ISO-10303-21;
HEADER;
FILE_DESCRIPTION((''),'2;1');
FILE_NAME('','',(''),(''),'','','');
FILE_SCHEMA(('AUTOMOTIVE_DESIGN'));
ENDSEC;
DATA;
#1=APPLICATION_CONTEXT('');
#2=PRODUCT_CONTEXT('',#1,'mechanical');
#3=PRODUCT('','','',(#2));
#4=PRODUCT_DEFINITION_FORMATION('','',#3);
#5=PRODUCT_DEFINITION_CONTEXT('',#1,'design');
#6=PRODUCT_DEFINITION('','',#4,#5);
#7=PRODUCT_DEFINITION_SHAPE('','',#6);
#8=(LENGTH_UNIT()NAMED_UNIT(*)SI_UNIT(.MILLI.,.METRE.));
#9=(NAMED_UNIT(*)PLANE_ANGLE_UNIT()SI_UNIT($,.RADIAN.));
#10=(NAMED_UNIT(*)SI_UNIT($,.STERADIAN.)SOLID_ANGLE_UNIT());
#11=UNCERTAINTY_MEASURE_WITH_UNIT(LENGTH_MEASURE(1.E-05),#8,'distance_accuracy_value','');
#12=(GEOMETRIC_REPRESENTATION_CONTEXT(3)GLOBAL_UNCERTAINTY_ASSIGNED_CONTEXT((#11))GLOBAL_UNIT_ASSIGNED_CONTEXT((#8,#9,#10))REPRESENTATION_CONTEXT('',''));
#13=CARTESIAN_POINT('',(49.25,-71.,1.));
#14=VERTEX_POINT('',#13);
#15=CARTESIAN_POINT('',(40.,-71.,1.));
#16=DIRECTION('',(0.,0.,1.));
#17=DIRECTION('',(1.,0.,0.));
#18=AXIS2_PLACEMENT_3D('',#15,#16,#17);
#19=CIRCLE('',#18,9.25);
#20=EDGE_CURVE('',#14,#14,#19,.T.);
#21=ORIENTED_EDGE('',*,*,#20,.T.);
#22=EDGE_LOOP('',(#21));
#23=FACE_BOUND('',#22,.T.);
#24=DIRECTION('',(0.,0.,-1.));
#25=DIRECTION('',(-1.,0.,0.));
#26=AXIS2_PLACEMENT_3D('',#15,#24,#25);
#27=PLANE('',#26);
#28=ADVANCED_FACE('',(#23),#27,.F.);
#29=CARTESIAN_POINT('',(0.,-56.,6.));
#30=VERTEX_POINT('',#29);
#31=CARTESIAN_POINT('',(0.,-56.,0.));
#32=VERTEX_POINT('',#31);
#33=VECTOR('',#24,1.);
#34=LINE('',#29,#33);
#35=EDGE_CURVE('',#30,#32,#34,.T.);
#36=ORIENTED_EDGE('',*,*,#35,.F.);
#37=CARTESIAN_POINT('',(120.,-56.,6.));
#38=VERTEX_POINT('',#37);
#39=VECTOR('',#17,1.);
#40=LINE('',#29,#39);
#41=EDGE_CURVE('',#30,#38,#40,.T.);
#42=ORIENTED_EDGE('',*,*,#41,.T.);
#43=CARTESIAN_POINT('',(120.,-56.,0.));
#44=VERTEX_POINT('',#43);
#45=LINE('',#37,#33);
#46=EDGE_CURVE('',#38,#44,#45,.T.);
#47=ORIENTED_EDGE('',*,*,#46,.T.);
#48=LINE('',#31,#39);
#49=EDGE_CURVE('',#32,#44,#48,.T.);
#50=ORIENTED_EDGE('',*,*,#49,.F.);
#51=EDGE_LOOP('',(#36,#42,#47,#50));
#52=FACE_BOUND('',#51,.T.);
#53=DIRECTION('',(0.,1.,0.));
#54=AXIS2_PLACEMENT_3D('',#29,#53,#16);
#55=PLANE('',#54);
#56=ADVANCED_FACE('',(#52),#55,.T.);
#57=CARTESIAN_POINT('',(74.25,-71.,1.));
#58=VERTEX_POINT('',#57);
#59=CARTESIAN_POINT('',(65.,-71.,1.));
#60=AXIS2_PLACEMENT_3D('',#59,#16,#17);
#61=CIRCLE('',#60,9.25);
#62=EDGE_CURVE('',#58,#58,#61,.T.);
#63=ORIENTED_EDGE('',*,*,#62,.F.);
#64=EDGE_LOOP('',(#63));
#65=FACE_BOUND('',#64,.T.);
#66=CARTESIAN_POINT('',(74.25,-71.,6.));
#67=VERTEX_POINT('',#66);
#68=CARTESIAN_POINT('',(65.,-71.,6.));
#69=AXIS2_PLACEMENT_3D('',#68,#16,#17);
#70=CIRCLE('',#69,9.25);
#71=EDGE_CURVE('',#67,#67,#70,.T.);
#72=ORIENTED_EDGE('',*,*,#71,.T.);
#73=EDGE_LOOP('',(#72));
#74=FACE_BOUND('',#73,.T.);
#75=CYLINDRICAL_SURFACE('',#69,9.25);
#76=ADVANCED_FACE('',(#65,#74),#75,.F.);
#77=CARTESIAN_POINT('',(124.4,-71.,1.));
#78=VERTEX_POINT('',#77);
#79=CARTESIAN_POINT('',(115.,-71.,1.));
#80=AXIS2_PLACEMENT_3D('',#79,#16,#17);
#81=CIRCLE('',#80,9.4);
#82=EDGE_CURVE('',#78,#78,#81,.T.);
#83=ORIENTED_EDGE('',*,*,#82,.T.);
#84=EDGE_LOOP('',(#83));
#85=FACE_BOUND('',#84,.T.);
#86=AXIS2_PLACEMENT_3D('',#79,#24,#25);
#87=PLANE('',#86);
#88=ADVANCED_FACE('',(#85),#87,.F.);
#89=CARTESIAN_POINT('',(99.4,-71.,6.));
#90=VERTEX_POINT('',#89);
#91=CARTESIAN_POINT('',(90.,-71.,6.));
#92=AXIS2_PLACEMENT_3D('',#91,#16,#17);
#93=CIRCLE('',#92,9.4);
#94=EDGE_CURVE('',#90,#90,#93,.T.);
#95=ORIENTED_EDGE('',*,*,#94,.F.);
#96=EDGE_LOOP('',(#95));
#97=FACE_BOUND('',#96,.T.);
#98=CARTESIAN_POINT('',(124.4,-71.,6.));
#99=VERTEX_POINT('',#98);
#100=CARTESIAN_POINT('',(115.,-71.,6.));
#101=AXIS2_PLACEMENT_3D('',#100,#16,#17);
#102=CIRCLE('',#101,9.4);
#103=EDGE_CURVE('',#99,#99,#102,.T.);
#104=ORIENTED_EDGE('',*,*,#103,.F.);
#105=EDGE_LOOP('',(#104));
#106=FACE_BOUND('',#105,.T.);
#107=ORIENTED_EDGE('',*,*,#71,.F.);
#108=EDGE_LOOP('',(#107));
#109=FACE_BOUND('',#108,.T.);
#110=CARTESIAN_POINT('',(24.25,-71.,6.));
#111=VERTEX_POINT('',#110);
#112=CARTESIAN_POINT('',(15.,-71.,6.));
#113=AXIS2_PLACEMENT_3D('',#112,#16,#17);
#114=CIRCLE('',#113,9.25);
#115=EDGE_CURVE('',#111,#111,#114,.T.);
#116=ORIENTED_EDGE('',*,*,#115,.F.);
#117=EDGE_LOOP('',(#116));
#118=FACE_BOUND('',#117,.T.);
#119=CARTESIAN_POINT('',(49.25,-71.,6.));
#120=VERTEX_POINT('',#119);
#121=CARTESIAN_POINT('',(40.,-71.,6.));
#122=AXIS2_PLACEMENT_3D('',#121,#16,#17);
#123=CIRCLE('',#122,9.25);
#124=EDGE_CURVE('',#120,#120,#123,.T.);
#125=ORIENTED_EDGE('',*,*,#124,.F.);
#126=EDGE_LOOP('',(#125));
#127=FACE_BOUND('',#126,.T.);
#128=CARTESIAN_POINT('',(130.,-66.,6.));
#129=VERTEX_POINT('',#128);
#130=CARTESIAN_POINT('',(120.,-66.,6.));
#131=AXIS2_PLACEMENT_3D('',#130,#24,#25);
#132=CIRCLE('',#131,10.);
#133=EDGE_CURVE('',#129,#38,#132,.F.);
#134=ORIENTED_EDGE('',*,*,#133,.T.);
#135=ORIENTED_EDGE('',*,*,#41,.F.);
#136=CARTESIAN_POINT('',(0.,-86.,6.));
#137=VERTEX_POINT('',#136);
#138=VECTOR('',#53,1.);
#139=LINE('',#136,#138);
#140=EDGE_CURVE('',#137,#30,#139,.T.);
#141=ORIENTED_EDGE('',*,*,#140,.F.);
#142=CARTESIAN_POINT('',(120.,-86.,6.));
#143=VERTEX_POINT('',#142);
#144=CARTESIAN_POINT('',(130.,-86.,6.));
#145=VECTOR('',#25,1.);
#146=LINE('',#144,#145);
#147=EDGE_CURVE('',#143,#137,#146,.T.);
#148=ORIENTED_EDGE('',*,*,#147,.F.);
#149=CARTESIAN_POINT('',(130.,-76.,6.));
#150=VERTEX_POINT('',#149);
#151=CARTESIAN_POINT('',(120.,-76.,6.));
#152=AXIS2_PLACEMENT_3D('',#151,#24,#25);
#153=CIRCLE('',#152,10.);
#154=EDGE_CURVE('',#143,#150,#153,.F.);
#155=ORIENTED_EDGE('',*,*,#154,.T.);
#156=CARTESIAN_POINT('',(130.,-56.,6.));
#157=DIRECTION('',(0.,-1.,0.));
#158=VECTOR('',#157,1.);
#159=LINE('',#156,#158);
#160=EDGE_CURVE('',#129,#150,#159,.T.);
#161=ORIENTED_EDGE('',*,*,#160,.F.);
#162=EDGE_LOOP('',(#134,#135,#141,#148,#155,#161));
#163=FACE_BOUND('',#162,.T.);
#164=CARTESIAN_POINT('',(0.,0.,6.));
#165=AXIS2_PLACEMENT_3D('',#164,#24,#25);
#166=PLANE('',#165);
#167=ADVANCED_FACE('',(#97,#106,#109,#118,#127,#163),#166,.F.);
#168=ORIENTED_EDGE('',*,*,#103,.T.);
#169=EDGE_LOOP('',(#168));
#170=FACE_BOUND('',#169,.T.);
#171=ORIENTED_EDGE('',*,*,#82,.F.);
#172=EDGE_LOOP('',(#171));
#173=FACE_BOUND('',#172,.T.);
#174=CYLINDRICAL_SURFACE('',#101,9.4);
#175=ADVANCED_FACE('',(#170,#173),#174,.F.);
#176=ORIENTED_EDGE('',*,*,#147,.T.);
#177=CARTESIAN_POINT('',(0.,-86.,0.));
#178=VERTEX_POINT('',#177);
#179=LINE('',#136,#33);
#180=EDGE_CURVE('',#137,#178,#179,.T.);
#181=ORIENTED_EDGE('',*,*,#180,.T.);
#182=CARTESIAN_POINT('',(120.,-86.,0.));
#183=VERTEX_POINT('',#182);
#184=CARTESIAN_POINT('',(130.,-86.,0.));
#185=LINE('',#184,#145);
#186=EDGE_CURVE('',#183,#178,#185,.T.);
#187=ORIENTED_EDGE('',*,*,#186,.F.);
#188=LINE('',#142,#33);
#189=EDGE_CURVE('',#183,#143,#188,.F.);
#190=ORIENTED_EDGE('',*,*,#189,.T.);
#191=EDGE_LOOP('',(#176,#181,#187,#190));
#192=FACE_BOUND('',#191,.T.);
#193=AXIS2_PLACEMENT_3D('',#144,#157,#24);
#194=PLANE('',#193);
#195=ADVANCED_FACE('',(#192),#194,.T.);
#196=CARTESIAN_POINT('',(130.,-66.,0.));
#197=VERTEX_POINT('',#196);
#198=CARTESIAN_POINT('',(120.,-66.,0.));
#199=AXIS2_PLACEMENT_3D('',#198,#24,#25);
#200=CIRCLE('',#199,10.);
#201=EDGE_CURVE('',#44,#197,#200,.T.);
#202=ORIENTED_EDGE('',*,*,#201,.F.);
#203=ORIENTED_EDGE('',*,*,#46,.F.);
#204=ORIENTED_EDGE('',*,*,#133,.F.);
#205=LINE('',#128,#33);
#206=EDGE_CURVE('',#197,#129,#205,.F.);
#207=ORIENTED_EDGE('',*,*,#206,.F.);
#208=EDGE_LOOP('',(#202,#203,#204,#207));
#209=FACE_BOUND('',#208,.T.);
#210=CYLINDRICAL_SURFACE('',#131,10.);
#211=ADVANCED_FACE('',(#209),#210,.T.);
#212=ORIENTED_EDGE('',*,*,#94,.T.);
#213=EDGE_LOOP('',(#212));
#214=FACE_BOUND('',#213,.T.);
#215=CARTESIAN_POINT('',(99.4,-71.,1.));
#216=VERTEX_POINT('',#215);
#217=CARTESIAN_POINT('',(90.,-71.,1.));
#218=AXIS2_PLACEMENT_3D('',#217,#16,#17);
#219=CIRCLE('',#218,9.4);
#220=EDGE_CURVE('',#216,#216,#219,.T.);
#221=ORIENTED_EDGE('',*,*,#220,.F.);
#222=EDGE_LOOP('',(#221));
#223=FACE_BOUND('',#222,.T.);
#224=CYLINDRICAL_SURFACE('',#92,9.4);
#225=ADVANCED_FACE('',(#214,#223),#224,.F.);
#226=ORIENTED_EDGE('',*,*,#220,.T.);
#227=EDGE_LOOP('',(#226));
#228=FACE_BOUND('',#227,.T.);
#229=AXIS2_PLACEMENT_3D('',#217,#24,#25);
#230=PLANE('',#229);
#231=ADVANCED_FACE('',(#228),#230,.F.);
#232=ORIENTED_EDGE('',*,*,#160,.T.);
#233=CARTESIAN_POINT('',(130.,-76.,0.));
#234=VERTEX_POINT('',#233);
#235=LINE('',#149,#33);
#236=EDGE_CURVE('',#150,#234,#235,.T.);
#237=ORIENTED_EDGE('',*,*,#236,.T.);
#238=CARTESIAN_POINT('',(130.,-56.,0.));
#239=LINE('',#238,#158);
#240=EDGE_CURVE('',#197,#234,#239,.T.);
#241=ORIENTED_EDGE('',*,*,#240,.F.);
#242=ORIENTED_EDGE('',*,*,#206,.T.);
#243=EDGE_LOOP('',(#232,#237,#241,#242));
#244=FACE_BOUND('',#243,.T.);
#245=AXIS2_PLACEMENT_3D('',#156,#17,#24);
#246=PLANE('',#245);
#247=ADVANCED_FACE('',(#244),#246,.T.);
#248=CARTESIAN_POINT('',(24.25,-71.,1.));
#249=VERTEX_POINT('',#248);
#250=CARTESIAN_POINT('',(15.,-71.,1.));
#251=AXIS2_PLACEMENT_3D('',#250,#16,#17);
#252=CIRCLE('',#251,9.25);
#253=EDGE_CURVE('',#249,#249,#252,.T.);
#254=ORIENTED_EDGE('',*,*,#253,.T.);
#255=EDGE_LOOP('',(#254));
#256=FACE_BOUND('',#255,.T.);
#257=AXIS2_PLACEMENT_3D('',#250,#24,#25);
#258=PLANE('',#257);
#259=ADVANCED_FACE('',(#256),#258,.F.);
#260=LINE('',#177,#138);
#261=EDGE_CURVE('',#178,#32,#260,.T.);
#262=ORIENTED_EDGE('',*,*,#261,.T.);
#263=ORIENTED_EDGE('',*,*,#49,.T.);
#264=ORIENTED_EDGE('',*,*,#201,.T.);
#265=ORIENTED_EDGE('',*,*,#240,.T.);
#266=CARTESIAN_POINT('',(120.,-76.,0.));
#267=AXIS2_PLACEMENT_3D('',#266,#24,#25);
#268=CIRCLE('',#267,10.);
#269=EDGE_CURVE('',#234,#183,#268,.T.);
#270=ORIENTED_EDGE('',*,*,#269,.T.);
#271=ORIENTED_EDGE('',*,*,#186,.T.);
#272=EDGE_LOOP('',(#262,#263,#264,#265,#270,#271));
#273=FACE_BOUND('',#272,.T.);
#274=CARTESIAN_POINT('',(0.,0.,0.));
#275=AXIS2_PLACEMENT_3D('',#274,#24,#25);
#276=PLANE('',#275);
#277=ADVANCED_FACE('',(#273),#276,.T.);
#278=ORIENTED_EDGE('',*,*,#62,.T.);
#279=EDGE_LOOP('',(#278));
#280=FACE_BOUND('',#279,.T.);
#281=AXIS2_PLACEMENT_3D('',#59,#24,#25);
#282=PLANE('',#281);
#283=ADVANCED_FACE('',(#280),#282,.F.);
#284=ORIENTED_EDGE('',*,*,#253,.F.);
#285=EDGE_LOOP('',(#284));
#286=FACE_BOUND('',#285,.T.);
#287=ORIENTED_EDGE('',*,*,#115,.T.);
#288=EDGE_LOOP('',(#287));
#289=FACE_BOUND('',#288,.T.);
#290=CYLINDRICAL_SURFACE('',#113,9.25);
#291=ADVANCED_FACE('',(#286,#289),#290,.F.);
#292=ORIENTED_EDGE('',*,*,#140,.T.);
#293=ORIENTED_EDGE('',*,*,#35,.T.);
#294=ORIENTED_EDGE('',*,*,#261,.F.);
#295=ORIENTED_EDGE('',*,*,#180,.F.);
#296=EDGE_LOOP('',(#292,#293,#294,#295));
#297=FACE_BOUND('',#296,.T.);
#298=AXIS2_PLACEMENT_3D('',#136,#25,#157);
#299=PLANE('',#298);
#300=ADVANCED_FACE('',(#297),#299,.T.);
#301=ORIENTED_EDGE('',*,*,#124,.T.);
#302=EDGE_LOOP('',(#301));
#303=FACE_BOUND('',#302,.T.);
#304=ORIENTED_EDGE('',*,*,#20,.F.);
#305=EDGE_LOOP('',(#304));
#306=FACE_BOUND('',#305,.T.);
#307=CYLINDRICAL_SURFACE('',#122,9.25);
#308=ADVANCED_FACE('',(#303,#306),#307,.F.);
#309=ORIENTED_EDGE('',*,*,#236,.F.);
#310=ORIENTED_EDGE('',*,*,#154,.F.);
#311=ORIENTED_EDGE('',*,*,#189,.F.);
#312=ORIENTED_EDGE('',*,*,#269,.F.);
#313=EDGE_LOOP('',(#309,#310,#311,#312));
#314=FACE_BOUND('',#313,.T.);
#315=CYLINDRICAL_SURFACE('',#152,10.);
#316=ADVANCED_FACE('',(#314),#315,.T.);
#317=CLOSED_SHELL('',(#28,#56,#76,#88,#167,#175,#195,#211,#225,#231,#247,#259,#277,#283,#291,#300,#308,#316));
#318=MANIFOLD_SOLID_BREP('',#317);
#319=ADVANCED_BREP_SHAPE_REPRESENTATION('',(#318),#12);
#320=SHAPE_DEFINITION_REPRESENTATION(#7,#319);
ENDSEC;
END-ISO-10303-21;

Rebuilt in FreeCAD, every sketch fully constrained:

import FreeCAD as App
import Part
import Sketcher

V = App.Vector
Q = App.Units.Quantity


def edges_at(feature, points):
    """Names of the edges that pass closest to the given points."""
    edges = feature.Shape.Edges
    near = lambda p: min(range(len(edges)), key=lambda i: edges[i].distToShape(Part.Vertex(*p))[0])
    return sorted({f"Edge{near(p) + 1}" for p in points})


def add_polygon(sketch, points):
    """Adds a closed chain of lines whose ends are joined by coincident constraints."""
    first, n = sketch.GeometryCount, len(points)
    for a, b in zip(points, points[1:] + points[:1]):
        sketch.addGeometry(Part.LineSegment(App.Vector(*a, 0), App.Vector(*b, 0)), False)
    for i in range(n):
        sketch.addConstraint(Sketcher.Constraint("Coincident", first + i, 2, first + (i + 1) % n, 1))

doc = App.newDocument("Part")
body = doc.addObject("PartDesign::Body", "Body")

sketch1 = body.newObject("Sketcher::SketchObject", "Sketch")
sketch1.AttachmentSupport = (doc.getObject("XY_Plane"), [""])
sketch1.MapMode = "FlatFace"
add_polygon(sketch1, [(130, -56), (130, -86), (0, -86), (0, -56)])
sketch1.addConstraint(Sketcher.Constraint("Vertical", 0))
sketch1.addConstraint(Sketcher.Constraint("Horizontal", 1))
sketch1.addConstraint(Sketcher.Constraint("Vertical", 2))
sketch1.addConstraint(Sketcher.Constraint("Horizontal", 3))
sketch1.addConstraint(Sketcher.Constraint("PointOnObject", 1, 2, -2))
sketch1.addConstraint(Sketcher.Constraint("DistanceX", 1, 2, 1, 1, Q("130 mm")))
sketch1.addConstraint(Sketcher.Constraint("DistanceY", 0, 2, 0, 1, Q("30 mm")))
sketch1.addConstraint(Sketcher.Constraint("DistanceY", 0, 2, -1, 1, Q("86 mm")))
pad1 = body.newObject("PartDesign::Pad", "Pad")
pad1.Profile = sketch1
pad1.Length = 6

sketch2 = body.newObject("Sketcher::SketchObject", "Sketch001")
sketch2.AttachmentSupport = (doc.getObject("XY_Plane"), [""])
sketch2.MapMode = "FlatFace"
sketch2.AttachmentOffset = App.Placement(V(0, 0, 6), App.Rotation())
sketch2.addGeometry(Part.Circle(V(90, -71, 0), V(0, 0, 1), 9.4), False)
sketch2.addGeometry(Part.Circle(V(115, -71, 0), V(0, 0, 1), 9.4), False)
sketch2.addConstraint(Sketcher.Constraint("Equal", 0, 1))
sketch2.addConstraint(Sketcher.Constraint("Horizontal", 0, 3, 1, 3))
sketch2.addConstraint(Sketcher.Constraint("Diameter", 0, Q("18.8 mm")))
sketch2.addConstraint(Sketcher.Constraint("DistanceX", -1, 1, 0, 3, Q("90 mm")))
sketch2.addConstraint(Sketcher.Constraint("DistanceY", 0, 3, -1, 1, Q("71 mm")))
sketch2.addConstraint(Sketcher.Constraint("DistanceX", -1, 1, 1, 3, Q("115 mm")))
doc.recompute()
hole = body.newObject("PartDesign::Hole", "Hole")
hole.Profile = sketch2
hole.ThreadType = "None"
hole.Diameter = 18.8
hole.DepthType = "Dimension"
hole.Depth = 5
hole.DrillPoint = "Flat"

sketch3 = body.newObject("Sketcher::SketchObject", "Sketch002")
sketch3.AttachmentSupport = (doc.getObject("XY_Plane"), [""])
sketch3.MapMode = "FlatFace"
sketch3.AttachmentOffset = App.Placement(V(0, 0, 6), App.Rotation())
sketch3.addGeometry(Part.Circle(V(15, -71, 0), V(0, 0, 1), 9.25), False)
sketch3.addGeometry(Part.Circle(V(40, -71, 0), V(0, 0, 1), 9.25), False)
sketch3.addGeometry(Part.Circle(V(65, -71, 0), V(0, 0, 1), 9.25), False)
sketch3.addConstraint(Sketcher.Constraint("Equal", 0, 1))
sketch3.addConstraint(Sketcher.Constraint("Equal", 1, 2))
sketch3.addConstraint(Sketcher.Constraint("Horizontal", 0, 3, 1, 3))
sketch3.addConstraint(Sketcher.Constraint("Horizontal", 1, 3, 2, 3))
sketch3.addConstraint(Sketcher.Constraint("Diameter", 0, Q("18.5 mm")))
sketch3.addConstraint(Sketcher.Constraint("DistanceX", -1, 1, 0, 3, Q("15 mm")))
sketch3.addConstraint(Sketcher.Constraint("DistanceY", 0, 3, -1, 1, Q("71 mm")))
sketch3.addConstraint(Sketcher.Constraint("DistanceX", -1, 1, 1, 3, Q("40 mm")))
sketch3.addConstraint(Sketcher.Constraint("DistanceX", -1, 1, 2, 3, Q("65 mm")))
doc.recompute()
hole2 = body.newObject("PartDesign::Hole", "Hole001")
hole2.Profile = sketch3
hole2.ThreadType = "None"
hole2.Diameter = 18.5
hole2.DepthType = "Dimension"
hole2.Depth = 5
hole2.DrillPoint = "Flat"
doc.recompute()

fillet = body.newObject("PartDesign::Fillet", "Fillet")
fillet.Base = (hole2, edges_at(hole2, [(130, -86, 3), (130, -56, 3)]))
fillet.Radius = 10

doc.recompute()
